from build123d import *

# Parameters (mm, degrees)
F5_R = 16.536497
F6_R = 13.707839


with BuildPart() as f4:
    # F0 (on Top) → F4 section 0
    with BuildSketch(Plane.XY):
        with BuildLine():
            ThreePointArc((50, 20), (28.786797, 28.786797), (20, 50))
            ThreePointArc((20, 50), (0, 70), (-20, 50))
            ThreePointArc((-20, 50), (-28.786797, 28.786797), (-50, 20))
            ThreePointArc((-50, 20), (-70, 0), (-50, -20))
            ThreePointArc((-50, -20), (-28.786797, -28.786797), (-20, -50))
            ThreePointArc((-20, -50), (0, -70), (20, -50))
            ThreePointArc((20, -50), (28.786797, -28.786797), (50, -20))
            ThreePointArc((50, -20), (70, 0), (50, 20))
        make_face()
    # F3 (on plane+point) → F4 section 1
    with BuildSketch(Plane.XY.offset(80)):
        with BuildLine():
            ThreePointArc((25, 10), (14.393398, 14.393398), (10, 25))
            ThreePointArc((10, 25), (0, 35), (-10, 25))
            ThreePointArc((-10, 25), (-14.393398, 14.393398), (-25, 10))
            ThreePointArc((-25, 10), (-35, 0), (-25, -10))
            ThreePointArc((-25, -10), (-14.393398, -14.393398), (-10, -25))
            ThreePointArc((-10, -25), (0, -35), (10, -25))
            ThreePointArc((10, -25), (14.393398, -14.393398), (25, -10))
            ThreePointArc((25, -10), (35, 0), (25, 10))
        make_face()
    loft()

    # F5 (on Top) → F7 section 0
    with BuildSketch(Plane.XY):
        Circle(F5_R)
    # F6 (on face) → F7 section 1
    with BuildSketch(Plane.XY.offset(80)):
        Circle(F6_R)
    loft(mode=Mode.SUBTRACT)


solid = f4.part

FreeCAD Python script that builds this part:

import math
import FreeCAD as App
import Part
import Sketcher

doc = App.newDocument("Part")
body = doc.addObject("PartDesign::Body", "Body")

# Sketch on XY plane
sketch1 = body.newObject("Sketcher::SketchObject", "Sketch")
sketch1.AttachmentSupport = (doc.getObject("XY_Plane"), [""])
sketch1.MapMode = "FlatFace"
sketch1.addGeometry([
    Part.ArcOfCircle(Part.Circle(App.Vector(50, 50, 0), App.Vector(0, 0, 1), 30), math.radians(-180), math.radians(-90)),  # 0
    Part.ArcOfCircle(Part.Circle(App.Vector(0, 50, 0), App.Vector(0, 0, 1), 20), math.radians(0), math.radians(180)),  # 1
    Part.ArcOfCircle(Part.Circle(App.Vector(-50, 50, 0), App.Vector(0, 0, 1), 30), math.radians(-90), math.radians(0)),  # 2
    Part.ArcOfCircle(Part.Circle(App.Vector(-50, 0, 0), App.Vector(0, 0, 1), 20), math.radians(90), math.radians(270)),  # 3
    Part.ArcOfCircle(Part.Circle(App.Vector(-50, -50, 0), App.Vector(0, 0, 1), 30), math.radians(0), math.radians(90)),  # 4
    Part.ArcOfCircle(Part.Circle(App.Vector(0, -50, 0), App.Vector(0, 0, 1), 20), math.radians(180), math.radians(360)),  # 5
    Part.ArcOfCircle(Part.Circle(App.Vector(50, -50, 0), App.Vector(0, 0, 1), 30), math.radians(90), math.radians(180)),  # 6
    Part.ArcOfCircle(Part.Circle(App.Vector(50, 0, 0), App.Vector(0, 0, 1), 20), math.radians(-90), math.radians(90)),  # 7
], False)
sketch1.addConstraint([
    Sketcher.Constraint("Tangent", 0, 1, 1, 1),
    Sketcher.Constraint("Tangent", 1, 2, 2, 2),
    Sketcher.Constraint("Tangent", 2, 1, 3, 1),
    Sketcher.Constraint("Tangent", 3, 2, 4, 2),
    Sketcher.Constraint("Tangent", 4, 1, 5, 1),
    Sketcher.Constraint("Tangent", 5, 2, 6, 2),
    Sketcher.Constraint("Tangent", 6, 1, 7, 1),
    Sketcher.Constraint("Tangent", 7, 2, 0, 2),
    Sketcher.Constraint("Equal", 0, 2),
    Sketcher.Constraint("Equal", 1, 3),
    Sketcher.Constraint("Equal", 2, 4),
    Sketcher.Constraint("Equal", 3, 5),
    Sketcher.Constraint("Equal", 4, 6),
    Sketcher.Constraint("Equal", 5, 7),
    Sketcher.Constraint("Symmetric", 0, 3, 4, 3, -1, 1),
    Sketcher.Constraint("Symmetric", 0, 3, 2, 3, -2),
    Sketcher.Constraint("Horizontal", 0, 3, 1, 3),
    Sketcher.Constraint("Horizontal", 4, 3, 5, 3),
    Sketcher.Constraint("Vertical", 2, 3, 3, 3),
    Sketcher.Constraint("Vertical", 6, 3, 7, 3),
    Sketcher.Constraint("Radius", 0, 30.000001),
    Sketcher.Constraint("Radius", 1, 20.0),
])

# Sketch on XY plane
sketch2 = body.newObject("Sketcher::SketchObject", "Sketch001")
sketch2.AttachmentSupport = (doc.getObject("XY_Plane"), [""])
sketch2.MapMode = "FlatFace"
sketch2.AttachmentOffset = App.Placement(App.Vector(0, 0, 80), App.Rotation())
sketch2.addGeometry([
    Part.ArcOfCircle(Part.Circle(App.Vector(25, 25, 0), App.Vector(0, 0, 1), 15), math.radians(180), math.radians(270)),  # 0
    Part.ArcOfCircle(Part.Circle(App.Vector(0, 25, 0), App.Vector(0, 0, 1), 10), math.radians(0), math.radians(180)),  # 1
    Part.ArcOfCircle(Part.Circle(App.Vector(-25, 25, 0), App.Vector(0, 0, 1), 15), math.radians(-90), math.radians(0)),  # 2
    Part.ArcOfCircle(Part.Circle(App.Vector(-25, 0, 0), App.Vector(0, 0, 1), 10), math.radians(90), math.radians(270)),  # 3
    Part.ArcOfCircle(Part.Circle(App.Vector(-25, -25, 0), App.Vector(0, 0, 1), 15), math.radians(0), math.radians(90)),  # 4
    Part.ArcOfCircle(Part.Circle(App.Vector(0, -25, 0), App.Vector(0, 0, 1), 10), math.radians(180), math.radians(360)),  # 5
    Part.ArcOfCircle(Part.Circle(App.Vector(25, -25, 0), App.Vector(0, 0, 1), 15), math.radians(90), math.radians(180)),  # 6
    Part.ArcOfCircle(Part.Circle(App.Vector(25, 0, 0), App.Vector(0, 0, 1), 10), math.radians(-90), math.radians(90)),  # 7
], False)
sketch2.addConstraint([
    Sketcher.Constraint("Tangent", 0, 1, 1, 1),
    Sketcher.Constraint("Tangent", 1, 2, 2, 2),
    Sketcher.Constraint("Tangent", 2, 1, 3, 1),
    Sketcher.Constraint("Tangent", 3, 2, 4, 2),
    Sketcher.Constraint("Tangent", 4, 1, 5, 1),
    Sketcher.Constraint("Tangent", 5, 2, 6, 2),
    Sketcher.Constraint("Tangent", 6, 1, 7, 1),
    Sketcher.Constraint("Tangent", 7, 2, 0, 2),
    Sketcher.Constraint("Equal", 0, 2),
    Sketcher.Constraint("Equal", 1, 3),
    Sketcher.Constraint("Equal", 2, 4),
    Sketcher.Constraint("Equal", 3, 5),
    Sketcher.Constraint("Equal", 4, 6),
    Sketcher.Constraint("Equal", 5, 7),
    Sketcher.Constraint("Symmetric", 0, 3, 4, 3, -1, 1),
    Sketcher.Constraint("Symmetric", 0, 3, 2, 3, -2),
    Sketcher.Constraint("Horizontal", 0, 3, 1, 3),
    Sketcher.Constraint("Horizontal", 4, 3, 5, 3),
    Sketcher.Constraint("Vertical", 2, 3, 3, 3),
    Sketcher.Constraint("Vertical", 6, 3, 7, 3),
    Sketcher.Constraint("Radius", 0, 14.999999),
    Sketcher.Constraint("Radius", 1, 10.0),
])

additiveloft = body.newObject("PartDesign::AdditiveLoft", "AdditiveLoft")
additiveloft.Profile = sketch1
additiveloft.Sections = [sketch2]

# Sketch on XY plane
sketch3 = body.newObject("Sketcher::SketchObject", "Sketch002")
sketch3.AttachmentSupport = (doc.getObject("XY_Plane"), [""])
sketch3.MapMode = "FlatFace"
sketch3.addGeometry(Part.Circle(App.Vector(0, 0, 0), App.Vector(0, 0, 1), 17), False)
sketch3.addConstraint([
    Sketcher.Constraint("Coincident", 0, 3, -1, 1),
    Sketcher.Constraint("Diameter", 0, 33.072994),
])

# Sketch on XY plane
sketch4 = body.newObject("Sketcher::SketchObject", "Sketch003")
sketch4.AttachmentSupport = (doc.getObject("XY_Plane"), [""])
sketch4.MapMode = "FlatFace"
sketch4.AttachmentOffset = App.Placement(App.Vector(0, 0, 80), App.Rotation())
sketch4.addGeometry(Part.Circle(App.Vector(0, 0, 0), App.Vector(0, 0, 1), 14), False)
sketch4.addConstraint([
    Sketcher.Constraint("Coincident", 0, 3, -1, 1),
    Sketcher.Constraint("Diameter", 0, 27.415678),
])

subtractiveloft = body.newObject("PartDesign::SubtractiveLoft", "SubtractiveLoft")
subtractiveloft.Profile = sketch3
subtractiveloft.Sections = [sketch4]

doc.recompute()
